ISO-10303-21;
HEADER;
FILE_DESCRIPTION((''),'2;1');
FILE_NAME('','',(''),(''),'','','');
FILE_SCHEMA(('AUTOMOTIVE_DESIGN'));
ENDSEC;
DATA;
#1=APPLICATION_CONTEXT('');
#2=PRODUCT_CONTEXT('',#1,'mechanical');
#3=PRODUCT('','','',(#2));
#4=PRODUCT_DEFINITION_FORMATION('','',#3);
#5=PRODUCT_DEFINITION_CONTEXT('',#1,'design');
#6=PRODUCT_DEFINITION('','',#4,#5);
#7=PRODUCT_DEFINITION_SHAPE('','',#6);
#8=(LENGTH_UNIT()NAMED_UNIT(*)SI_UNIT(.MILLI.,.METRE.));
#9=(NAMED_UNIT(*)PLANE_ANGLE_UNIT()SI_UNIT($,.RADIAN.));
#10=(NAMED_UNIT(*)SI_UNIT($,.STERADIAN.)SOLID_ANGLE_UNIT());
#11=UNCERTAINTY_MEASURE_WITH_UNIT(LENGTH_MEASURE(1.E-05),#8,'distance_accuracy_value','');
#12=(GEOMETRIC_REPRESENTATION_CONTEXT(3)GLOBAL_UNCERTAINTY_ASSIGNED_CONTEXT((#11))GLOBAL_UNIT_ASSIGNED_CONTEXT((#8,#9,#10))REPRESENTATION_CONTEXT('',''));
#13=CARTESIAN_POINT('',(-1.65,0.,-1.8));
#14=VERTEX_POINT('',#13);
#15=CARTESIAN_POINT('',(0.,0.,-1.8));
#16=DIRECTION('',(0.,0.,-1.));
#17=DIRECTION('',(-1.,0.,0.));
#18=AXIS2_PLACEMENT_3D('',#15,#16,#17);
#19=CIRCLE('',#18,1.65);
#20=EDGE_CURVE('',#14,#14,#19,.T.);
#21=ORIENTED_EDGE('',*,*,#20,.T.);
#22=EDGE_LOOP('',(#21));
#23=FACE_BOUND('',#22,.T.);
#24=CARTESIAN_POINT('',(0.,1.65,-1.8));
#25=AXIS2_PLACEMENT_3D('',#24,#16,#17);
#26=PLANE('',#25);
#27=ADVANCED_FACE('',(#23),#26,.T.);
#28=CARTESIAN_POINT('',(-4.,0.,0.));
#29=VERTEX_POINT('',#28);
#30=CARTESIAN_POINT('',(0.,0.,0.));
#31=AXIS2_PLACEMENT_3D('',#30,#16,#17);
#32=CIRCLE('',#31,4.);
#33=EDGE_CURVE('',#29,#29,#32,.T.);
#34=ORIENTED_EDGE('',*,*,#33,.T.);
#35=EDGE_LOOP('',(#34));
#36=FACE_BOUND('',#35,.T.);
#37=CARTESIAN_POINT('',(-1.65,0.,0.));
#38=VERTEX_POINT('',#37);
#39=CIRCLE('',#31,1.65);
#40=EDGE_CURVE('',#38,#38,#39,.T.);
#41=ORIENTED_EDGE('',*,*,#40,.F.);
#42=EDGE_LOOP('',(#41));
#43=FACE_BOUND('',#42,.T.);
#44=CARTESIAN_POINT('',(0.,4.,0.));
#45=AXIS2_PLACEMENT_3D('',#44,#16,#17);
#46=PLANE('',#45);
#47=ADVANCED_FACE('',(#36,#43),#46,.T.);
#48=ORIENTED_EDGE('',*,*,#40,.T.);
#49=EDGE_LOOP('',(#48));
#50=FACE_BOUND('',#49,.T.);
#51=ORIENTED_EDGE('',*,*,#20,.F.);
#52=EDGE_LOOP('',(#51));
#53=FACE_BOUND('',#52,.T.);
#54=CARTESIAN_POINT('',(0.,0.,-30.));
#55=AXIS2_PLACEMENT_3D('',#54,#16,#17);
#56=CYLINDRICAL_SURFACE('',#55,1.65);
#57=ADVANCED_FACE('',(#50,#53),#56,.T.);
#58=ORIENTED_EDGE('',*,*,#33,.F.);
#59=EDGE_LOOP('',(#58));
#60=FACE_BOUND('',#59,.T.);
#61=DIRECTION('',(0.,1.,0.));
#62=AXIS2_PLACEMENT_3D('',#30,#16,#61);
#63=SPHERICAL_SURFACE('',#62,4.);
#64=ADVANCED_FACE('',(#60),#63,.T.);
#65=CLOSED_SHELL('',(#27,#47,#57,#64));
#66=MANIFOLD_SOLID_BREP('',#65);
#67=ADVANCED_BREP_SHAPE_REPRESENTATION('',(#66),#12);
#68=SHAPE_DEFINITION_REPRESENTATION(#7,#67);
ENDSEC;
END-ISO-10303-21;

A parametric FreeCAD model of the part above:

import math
import FreeCAD as App
import Part
import Sketcher

V = App.Vector
Q = App.Units.Quantity

doc = App.newDocument("Part")
params = doc.addObject("Spreadsheet::Sheet", "Params")
for row, (alias, value) in enumerate([
    ("sketch1_radius", "4 mm"),
    ("sketch1_height", "5.8 mm"),
    ("sketch1_width", "2.35 mm"),
    ("revolution_angle", "360 deg"),
], start=1):
    params.set(f"A{row}", alias)
    params.set(f"B{row}", "=" + value)
    params.setAlias(f"B{row}", alias)

body = doc.addObject("PartDesign::Body", "Body")

# Sketch on YZ plane
sketch1 = body.newObject("Sketcher::SketchObject", "Sketch")
sketch1.AttachmentSupport = (doc.getObject("YZ_Plane"), [""])
sketch1.MapMode = "FlatFace"
sketch1.addGeometry([
    Part.LineSegment(V(1.6, 0, 0), V(4, 0, 0)),  # 0
    Part.ArcOfCircle(Part.Circle(V(0, 0, 0), V(0, 0, 1), 4), math.radians(0), math.radians(90)),  # 1
    Part.LineSegment(V(0, 4, 0), V(0, -1.8, 0)),  # 2
    Part.LineSegment(V(0, -1.8, 0), V(1.6, -1.8, 0)),  # 3
    Part.LineSegment(V(1.6, -1.8, 0), V(1.6, 0, 0)),  # 4
], False)
sketch1.addConstraint([
    Sketcher.Constraint("Coincident", 0, 2, 1, 1),
    Sketcher.Constraint("Coincident", 1, 2, 2, 1),
    Sketcher.Constraint("Coincident", 2, 2, 3, 1),
    Sketcher.Constraint("Coincident", 3, 2, 4, 1),
    Sketcher.Constraint("Coincident", 4, 2, 0, 1),
    Sketcher.Constraint("Horizontal", 0),
    Sketcher.Constraint("Vertical", 2),
    Sketcher.Constraint("Horizontal", 3),
    Sketcher.Constraint("Vertical", 4),
    Sketcher.Constraint("Coincident", 1, 3, -1, 1),
    Sketcher.Constraint("PointOnObject", 0, 2, -1),
    Sketcher.Constraint("PointOnObject", 1, 2, -2),
    Sketcher.Constraint("Radius", 1, Q("4 mm")),
    Sketcher.Constraint("DistanceY", 2, 2, 2, 1, Q("5.8 mm")),
    Sketcher.Constraint("DistanceX", 0, 1, 0, 2, Q("2.35 mm")),
])
sketch1.setExpression("Constraints[12]", "Params.sketch1_radius")
sketch1.setExpression("Constraints[13]", "Params.sketch1_height")
sketch1.setExpression("Constraints[14]", "Params.sketch1_width")
revolution = body.newObject("PartDesign::Revolution", "Revolution")
revolution.Profile = sketch1
revolution.ReferenceAxis = (sketch1, ["V_Axis"])
revolution.setExpression("Angle", "Params.revolution_angle")

doc.recompute()
